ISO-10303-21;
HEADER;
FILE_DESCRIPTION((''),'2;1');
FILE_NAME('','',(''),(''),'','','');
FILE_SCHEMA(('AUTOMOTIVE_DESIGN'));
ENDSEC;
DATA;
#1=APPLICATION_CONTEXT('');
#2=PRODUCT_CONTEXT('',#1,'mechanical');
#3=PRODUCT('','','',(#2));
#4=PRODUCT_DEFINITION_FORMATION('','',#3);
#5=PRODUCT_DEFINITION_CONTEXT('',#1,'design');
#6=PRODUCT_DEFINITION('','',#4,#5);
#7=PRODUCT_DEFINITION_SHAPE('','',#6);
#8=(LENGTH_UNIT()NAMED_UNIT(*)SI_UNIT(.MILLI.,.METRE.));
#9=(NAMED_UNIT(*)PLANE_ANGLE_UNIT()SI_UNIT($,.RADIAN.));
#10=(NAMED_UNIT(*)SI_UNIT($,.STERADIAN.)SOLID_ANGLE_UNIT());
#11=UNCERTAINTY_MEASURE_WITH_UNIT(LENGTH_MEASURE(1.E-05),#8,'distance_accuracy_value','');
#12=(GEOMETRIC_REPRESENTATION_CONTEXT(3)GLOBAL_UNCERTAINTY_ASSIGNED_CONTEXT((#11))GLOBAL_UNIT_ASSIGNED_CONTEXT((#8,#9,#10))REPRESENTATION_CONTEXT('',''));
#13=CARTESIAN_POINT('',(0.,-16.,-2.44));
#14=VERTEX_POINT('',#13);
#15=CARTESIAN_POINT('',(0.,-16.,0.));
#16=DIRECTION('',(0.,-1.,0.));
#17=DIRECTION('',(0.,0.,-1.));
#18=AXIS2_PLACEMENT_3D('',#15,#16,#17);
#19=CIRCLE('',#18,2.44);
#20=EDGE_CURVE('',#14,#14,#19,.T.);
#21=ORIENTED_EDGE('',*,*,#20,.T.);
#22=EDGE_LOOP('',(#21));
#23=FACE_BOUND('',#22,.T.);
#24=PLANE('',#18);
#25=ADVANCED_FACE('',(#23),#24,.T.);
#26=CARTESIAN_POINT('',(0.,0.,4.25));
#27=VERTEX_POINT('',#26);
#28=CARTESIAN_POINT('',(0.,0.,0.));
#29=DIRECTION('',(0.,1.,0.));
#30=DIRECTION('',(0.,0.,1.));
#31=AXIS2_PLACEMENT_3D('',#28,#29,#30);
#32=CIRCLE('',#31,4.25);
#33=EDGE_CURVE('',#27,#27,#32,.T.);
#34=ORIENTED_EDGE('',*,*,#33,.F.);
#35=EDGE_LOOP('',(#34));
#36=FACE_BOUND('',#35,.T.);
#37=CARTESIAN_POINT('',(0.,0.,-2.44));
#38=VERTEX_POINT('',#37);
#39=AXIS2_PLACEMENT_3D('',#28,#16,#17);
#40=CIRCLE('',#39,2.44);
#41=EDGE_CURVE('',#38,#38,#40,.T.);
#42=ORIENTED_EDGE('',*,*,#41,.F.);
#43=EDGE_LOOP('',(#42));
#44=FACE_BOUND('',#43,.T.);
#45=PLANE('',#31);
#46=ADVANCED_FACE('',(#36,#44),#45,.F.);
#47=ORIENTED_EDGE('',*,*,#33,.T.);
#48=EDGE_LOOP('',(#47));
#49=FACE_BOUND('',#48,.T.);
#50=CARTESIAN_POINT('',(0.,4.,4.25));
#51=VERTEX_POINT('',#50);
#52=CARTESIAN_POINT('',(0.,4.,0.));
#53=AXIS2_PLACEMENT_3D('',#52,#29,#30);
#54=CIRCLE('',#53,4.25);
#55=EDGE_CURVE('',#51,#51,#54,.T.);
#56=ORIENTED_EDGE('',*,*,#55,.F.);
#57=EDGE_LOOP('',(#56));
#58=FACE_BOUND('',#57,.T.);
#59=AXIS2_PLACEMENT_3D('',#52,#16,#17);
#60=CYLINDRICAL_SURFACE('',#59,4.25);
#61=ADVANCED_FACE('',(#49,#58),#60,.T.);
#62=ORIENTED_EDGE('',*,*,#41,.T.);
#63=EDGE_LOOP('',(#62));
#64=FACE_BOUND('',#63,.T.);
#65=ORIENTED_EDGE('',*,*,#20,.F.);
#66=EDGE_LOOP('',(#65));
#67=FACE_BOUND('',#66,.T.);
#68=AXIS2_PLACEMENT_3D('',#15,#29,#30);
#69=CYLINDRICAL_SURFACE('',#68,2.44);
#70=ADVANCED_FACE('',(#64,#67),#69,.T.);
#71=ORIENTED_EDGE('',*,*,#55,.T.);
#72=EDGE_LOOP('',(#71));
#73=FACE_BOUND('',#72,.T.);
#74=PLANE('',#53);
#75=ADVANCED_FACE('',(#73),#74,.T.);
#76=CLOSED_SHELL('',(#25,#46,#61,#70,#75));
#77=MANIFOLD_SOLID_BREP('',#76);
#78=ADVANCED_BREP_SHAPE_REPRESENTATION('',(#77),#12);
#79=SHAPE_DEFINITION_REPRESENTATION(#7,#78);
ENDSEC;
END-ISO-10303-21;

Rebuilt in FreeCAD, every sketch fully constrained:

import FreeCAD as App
import Part
import Sketcher
Q = App.Units.Quantity

doc = App.newDocument("Part")
body = doc.addObject("PartDesign::Body", "Body")

sketch1 = doc.addObject("Sketcher::SketchObject", "Sketch")
body.addObject(sketch1)
sketch1.AttachmentSupport = (doc.XZ_Plane, [""])
sketch1.MapMode = "FlatFace"
sketch1.addGeometry(Part.Circle(App.Vector(0, 0, 0), App.Vector(0, 0, 1), 4.2), False)
sketch1.addConstraint([
    Sketcher.Constraint("Coincident", 0, 3, -1, 1),
    Sketcher.Constraint("Diameter", 0, Q("8.5 mm")),
])
pad1 = doc.addObject("PartDesign::Pad", "Pad")
body.addObject(pad1)
pad1.Profile = sketch1
pad1.Length = 4
pad1.Reversed = True

sketch2 = doc.addObject("Sketcher::SketchObject", "Sketch001")
body.addObject(sketch2)
sketch2.AttachmentSupport = (doc.XZ_Plane, [""])
sketch2.MapMode = "FlatFace"
sketch2.addGeometry(Part.Circle(App.Vector(0, 0, 0), App.Vector(0, 0, 1), 2.4), False)
sketch2.addConstraint([
    Sketcher.Constraint("Coincident", 0, 3, -1, 1),
    Sketcher.Constraint("Diameter", 0, Q("4.88 mm")),
])
pad2 = doc.addObject("PartDesign::Pad", "Pad001")
body.addObject(pad2)
pad2.Profile = sketch2
pad2.Length = 16

doc.recompute()
